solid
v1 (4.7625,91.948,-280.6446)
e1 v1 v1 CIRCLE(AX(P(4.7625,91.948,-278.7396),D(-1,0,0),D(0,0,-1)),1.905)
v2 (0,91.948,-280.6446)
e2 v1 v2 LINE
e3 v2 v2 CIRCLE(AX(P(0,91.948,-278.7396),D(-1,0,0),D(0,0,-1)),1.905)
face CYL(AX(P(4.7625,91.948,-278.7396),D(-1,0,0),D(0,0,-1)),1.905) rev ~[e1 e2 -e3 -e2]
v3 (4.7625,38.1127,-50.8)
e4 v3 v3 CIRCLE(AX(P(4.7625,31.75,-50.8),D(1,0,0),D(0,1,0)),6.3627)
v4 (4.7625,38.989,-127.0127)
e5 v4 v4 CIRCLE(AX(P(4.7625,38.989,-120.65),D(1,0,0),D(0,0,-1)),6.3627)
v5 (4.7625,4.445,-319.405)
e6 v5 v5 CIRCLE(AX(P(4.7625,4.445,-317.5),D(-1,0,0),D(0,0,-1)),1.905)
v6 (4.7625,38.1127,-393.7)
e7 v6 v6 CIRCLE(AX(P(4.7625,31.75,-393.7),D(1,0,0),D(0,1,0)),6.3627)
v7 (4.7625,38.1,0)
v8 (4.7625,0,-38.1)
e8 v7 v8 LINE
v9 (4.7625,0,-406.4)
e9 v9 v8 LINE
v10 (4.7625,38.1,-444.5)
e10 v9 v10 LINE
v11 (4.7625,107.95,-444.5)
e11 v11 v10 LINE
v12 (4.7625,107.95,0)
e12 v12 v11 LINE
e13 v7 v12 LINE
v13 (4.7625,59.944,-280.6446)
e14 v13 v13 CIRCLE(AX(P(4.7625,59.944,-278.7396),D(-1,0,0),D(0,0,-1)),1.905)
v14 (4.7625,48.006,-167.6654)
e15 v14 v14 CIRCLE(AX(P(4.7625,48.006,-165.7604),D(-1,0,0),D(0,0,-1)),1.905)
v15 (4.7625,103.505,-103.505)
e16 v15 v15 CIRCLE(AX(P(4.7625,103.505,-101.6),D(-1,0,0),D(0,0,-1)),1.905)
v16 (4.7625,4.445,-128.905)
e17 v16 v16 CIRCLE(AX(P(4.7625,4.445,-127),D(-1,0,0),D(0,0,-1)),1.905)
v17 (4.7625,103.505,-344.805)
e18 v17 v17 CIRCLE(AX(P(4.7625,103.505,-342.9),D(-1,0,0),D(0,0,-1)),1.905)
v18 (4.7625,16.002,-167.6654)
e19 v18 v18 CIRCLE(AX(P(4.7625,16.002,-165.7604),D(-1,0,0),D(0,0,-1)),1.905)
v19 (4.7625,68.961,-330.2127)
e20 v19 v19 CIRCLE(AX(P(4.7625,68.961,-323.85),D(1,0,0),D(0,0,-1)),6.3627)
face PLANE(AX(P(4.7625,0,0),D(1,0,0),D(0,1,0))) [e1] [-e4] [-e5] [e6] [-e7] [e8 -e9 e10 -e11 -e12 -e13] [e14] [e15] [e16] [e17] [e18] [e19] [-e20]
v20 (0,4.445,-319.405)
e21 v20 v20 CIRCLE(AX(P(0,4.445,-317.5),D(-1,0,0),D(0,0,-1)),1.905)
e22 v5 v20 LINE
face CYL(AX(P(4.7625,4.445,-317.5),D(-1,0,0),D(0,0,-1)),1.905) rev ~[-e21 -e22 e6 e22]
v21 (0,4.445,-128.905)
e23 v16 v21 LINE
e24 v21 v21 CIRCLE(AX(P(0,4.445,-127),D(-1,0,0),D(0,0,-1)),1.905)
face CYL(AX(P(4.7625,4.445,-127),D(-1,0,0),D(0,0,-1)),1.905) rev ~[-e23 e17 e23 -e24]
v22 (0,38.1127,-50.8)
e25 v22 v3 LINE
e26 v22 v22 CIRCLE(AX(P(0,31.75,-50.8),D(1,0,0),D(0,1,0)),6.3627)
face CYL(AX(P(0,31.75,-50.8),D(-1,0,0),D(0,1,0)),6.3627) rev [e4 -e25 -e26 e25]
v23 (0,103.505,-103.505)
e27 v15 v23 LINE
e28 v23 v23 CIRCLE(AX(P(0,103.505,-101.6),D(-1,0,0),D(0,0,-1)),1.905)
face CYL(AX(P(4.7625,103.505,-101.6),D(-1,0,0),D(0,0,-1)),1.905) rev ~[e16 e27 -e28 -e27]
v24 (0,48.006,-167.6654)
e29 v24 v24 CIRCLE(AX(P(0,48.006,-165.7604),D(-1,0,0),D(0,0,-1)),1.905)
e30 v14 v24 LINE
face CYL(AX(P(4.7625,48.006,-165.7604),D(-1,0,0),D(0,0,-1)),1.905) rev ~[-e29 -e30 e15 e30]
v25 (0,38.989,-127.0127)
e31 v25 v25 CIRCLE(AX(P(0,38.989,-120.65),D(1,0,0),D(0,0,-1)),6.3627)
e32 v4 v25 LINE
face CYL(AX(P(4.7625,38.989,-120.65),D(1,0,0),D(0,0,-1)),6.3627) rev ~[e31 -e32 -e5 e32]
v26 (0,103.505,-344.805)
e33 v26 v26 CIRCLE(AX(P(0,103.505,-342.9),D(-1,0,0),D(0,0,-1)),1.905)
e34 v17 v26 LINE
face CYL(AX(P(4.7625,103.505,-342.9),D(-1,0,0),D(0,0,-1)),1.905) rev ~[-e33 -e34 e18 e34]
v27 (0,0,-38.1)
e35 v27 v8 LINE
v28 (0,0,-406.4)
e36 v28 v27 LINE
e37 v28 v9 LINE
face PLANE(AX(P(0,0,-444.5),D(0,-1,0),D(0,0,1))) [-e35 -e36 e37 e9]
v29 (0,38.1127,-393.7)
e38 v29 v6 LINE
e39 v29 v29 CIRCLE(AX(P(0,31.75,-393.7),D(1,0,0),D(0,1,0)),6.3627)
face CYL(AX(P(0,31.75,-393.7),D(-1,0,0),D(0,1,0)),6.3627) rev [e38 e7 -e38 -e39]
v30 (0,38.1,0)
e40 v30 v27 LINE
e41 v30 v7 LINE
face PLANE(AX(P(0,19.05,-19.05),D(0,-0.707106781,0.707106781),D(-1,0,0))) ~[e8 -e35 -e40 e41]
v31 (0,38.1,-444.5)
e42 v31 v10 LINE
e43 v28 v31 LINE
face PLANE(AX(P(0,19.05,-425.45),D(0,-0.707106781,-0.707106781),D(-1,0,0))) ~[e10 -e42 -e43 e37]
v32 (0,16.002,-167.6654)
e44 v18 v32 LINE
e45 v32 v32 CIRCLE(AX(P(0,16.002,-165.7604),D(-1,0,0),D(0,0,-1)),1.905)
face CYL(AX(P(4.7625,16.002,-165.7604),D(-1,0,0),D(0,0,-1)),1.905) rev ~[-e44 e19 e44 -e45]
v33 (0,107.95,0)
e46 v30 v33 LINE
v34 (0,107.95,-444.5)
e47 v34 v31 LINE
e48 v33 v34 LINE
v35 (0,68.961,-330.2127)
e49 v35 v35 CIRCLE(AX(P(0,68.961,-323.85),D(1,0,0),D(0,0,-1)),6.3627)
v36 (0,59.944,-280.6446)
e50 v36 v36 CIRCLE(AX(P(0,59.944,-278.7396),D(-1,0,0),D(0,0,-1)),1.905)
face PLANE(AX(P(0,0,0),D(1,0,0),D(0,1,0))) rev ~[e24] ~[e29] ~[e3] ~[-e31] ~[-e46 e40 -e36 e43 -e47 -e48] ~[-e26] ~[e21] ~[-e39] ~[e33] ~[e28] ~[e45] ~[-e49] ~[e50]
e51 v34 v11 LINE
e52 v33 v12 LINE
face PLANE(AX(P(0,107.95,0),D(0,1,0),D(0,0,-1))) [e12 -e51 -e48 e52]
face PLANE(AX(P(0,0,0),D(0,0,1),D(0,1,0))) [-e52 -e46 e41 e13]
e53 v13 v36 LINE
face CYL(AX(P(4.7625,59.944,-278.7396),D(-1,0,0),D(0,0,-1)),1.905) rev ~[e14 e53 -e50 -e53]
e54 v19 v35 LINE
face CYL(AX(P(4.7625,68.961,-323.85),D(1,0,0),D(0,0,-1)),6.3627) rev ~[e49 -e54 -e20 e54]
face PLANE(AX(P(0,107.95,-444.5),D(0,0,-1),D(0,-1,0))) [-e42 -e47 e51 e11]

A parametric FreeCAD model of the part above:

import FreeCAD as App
import Part
import Sketcher
from FreeCAD import Vector
Q = App.Units.Quantity


def edges_at(feature, points):
    """Names of the edges that pass closest to the given points."""
    edges = feature.Shape.Edges
    near = lambda p: min(range(len(edges)), key=lambda i: edges[i].distToShape(Part.Vertex(*p))[0])
    return sorted({f"Edge{near(p) + 1}" for p in points})


def add_polygon(sketch, points):
    """Adds a closed chain of lines whose ends are joined by coincident constraints."""
    first, n = sketch.GeometryCount, len(points)
    for a, b in zip(points, points[1:] + points[:1]):
        sketch.addGeometry(Part.LineSegment(App.Vector(*a, 0), App.Vector(*b, 0)), False)
    for i in range(n):
        sketch.addConstraint(Sketcher.Constraint("Coincident", first + i, 2, first + (i + 1) % n, 1))

doc = App.newDocument("Part")
body = doc.addObject("PartDesign::Body", "Body")

sketch1 = doc.addObject("Sketcher::SketchObject", "Sketch")
body.addObject(sketch1)
sketch1.AttachmentSupport = (doc.YZ_Plane, [""])
sketch1.MapMode = "FlatFace"
add_polygon(sketch1, [(108, 0), (0, 0), (0, -444), (108, -444)])
sketch1.addGeometry(Part.Circle(Vector(32, -394, 0), Vector(0, 0, 1), 6), False)
sketch1.addGeometry(Part.Circle(Vector(32, -51, 0), Vector(0, 0, 1), 6), False)
sketch1.addConstraint([
    Sketcher.Constraint("Horizontal", 0),
    Sketcher.Constraint("Vertical", 1),
    Sketcher.Constraint("Horizontal", 2),
    Sketcher.Constraint("Vertical", 3),
    Sketcher.Constraint("Coincident", 0, 2, -1, 1),
    Sketcher.Constraint("Equal", 4, 5),
    Sketcher.Constraint("Vertical", 4, 3, 5, 3),
    Sketcher.Constraint("Diameter", 4, Q("0.501 in")),
    Sketcher.Constraint("DistanceY", 1, 2, 1, 1, Q("17.5 in")),
    Sketcher.Constraint("DistanceY", 5, 3, -1, 1, Q("2 in")),
    Sketcher.Constraint("DistanceY", 1, 2, 4, 3, Q("2 in")),
    Sketcher.Constraint("DistanceX", 0, 2, 0, 1, Q("4.25 in")),
    Sketcher.Constraint("DistanceX", -1, 1, 4, 3, Q("1.25 in")),
])
pad1 = doc.addObject("PartDesign::Pad", "Pad")
body.addObject(pad1)
pad1.Profile = sketch1
pad1.Length = Q("0.1875 in")
doc.recompute()

chamfer = doc.addObject("PartDesign::Chamfer", "Chamfer")
body.addObject(chamfer)
chamfer.Base = (pad1, edges_at(pad1, [(2.381, 0, 0)]))
chamfer.Size = Q("1.5 in")
doc.recompute()

chamfer2 = doc.addObject("PartDesign::Chamfer", "Chamfer001")
body.addObject(chamfer2)
chamfer2.Base = (chamfer, edges_at(chamfer, [(2.381, 0, -444.5)]))
chamfer2.Size = Q("1.5 in")

sketch2 = doc.addObject("Sketcher::SketchObject", "Sketch001")
body.addObject(sketch2)
sketch2.AttachmentSupport = (doc.YZ_Plane, [""])
sketch2.MapMode = "FlatFace"
sketch2.AttachmentOffset = App.Placement(Vector(0, 0, 0.1875 * 25.4), App.Rotation())
sketch2.addGeometry([
    Part.Circle(Vector(39, -121, 0), Vector(0, 0, 1), 6),
    Part.Circle(Vector(69, -324, 0), Vector(0, 0, 1), 6),
], False)
sketch2.addConstraint([
    Sketcher.Constraint("Equal", 0, 1),
    Sketcher.Constraint("Diameter", 0, Q("0.501 in")),
    Sketcher.Constraint("DistanceY", 0, 3, -1, 1, Q("4.75 in")),
    Sketcher.Constraint("DistanceX", -1, 1, 0, 3, Q("1.535 in")),
    Sketcher.Constraint("DistanceY", 1, 3, 0, 3, Q("8 in")),
    Sketcher.Constraint("DistanceX", 0, 3, 1, 3, Q("1.18 in")),
])
pocket1 = doc.addObject("PartDesign::Pocket", "Pocket")
body.addObject(pocket1)
pocket1.Profile = sketch2
pocket1.Length = Q("1 in")

sketch3 = doc.addObject("Sketcher::SketchObject", "Sketch002")
body.addObject(sketch3)
sketch3.AttachmentSupport = (doc.YZ_Plane, [""])
sketch3.MapMode = "FlatFace"
sketch3.AttachmentOffset = App.Placement(Vector(0, 0, 0.1875 * 25.4), App.Rotation())
sketch3.addGeometry([
    Part.Circle(Vector(48, -165.8, 0), Vector(0, 0, 1), 1.9),
    Part.Circle(Vector(16, -165.8, 0), Vector(0, 0, 1), 1.9),
    Part.Circle(Vector(91.9, -278.7, 0), Vector(0, 0, 1), 1.9),
    Part.Circle(Vector(59.9, -278.7, 0), Vector(0, 0, 1), 1.9),
], False)
sketch3.addConstraint([
    Sketcher.Constraint("Equal", 0, 1),
    Sketcher.Constraint("Equal", 1, 2),
    Sketcher.Constraint("Equal", 2, 3),
    Sketcher.Constraint("Horizontal", 0, 3, 1, 3),
    Sketcher.Constraint("Horizontal", 2, 3, 3, 3),
    Sketcher.Constraint("Diameter", 0, Q("0.15 in")),
    Sketcher.Constraint("DistanceX", -1, 1, 0, 3, Q("1.89 in")),
    Sketcher.Constraint("DistanceX", -1, 1, 1, 3, Q("0.63 in")),
    Sketcher.Constraint("DistanceX", -1, 1, 2, 3, Q("3.62 in")),
    Sketcher.Constraint("DistanceX", -1, 1, 3, 3, Q("2.36 in")),
    Sketcher.Constraint("DistanceY", 0, 3, -1, 1, Q("6.526 in")),
    Sketcher.Constraint("DistanceY", 2, 3, -1, 1, Q("10.974 in")),
])
doc.recompute()
hole = doc.addObject("PartDesign::Hole", "Hole")
body.addObject(hole)
hole.Profile = sketch3
hole.ThreadType = "None"
hole.Diameter = Q("0.15 in")
hole.DepthType = "ThroughAll"

sketch4 = doc.addObject("Sketcher::SketchObject", "Sketch003")
body.addObject(sketch4)
sketch4.AttachmentSupport = (doc.YZ_Plane, [""])
sketch4.MapMode = "FlatFace"
sketch4.AttachmentOffset = App.Placement(Vector(0, 0, 0.1875 * 25.4), App.Rotation())
sketch4.addGeometry([
    Part.Circle(Vector(103.5, -101.6, 0), Vector(0, 0, 1), 1.9),
    Part.Circle(Vector(103.5, -342.9, 0), Vector(0, 0, 1), 1.9),
    Part.Circle(Vector(4.4, -127, 0), Vector(0, 0, 1), 1.9),
    Part.Circle(Vector(4.4, -317.5, 0), Vector(0, 0, 1), 1.9),
], False)
sketch4.addConstraint([
    Sketcher.Constraint("Equal", 0, 1),
    Sketcher.Constraint("Equal", 1, 2),
    Sketcher.Constraint("Equal", 2, 3),
    Sketcher.Constraint("Vertical", 0, 3, 1, 3),
    Sketcher.Constraint("Vertical", 2, 3, 3, 3),
    Sketcher.Constraint("Diameter", 0, Q("0.15 in")),
    Sketcher.Constraint("DistanceY", 0, 3, -1, 1, Q("4 in")),
    Sketcher.Constraint("DistanceY", 2, 3, -1, 1, Q("5 in")),
    Sketcher.Constraint("DistanceY", 1, 3, 3, 3, Q("1 in")),
    Sketcher.Constraint("DistanceY", 1, 3, -1, 1, Q("13.5 in")),
    Sketcher.Constraint("DistanceX", 2, 3, 0, 3, Q("3.9 in")),
    Sketcher.Constraint("DistanceX", -1, 1, 0, 3, Q("4.075 in")),
])
doc.recompute()
hole2 = doc.addObject("PartDesign::Hole", "Hole001")
body.addObject(hole2)
hole2.Profile = sketch4
hole2.ThreadType = "None"
hole2.Diameter = Q("0.15 in")
hole2.DepthType = "Dimension"
hole2.Depth = Q("1 in")
hole2.DrillPoint = "Angled"
hole2.DrillPointAngle = 118

doc.recompute()
